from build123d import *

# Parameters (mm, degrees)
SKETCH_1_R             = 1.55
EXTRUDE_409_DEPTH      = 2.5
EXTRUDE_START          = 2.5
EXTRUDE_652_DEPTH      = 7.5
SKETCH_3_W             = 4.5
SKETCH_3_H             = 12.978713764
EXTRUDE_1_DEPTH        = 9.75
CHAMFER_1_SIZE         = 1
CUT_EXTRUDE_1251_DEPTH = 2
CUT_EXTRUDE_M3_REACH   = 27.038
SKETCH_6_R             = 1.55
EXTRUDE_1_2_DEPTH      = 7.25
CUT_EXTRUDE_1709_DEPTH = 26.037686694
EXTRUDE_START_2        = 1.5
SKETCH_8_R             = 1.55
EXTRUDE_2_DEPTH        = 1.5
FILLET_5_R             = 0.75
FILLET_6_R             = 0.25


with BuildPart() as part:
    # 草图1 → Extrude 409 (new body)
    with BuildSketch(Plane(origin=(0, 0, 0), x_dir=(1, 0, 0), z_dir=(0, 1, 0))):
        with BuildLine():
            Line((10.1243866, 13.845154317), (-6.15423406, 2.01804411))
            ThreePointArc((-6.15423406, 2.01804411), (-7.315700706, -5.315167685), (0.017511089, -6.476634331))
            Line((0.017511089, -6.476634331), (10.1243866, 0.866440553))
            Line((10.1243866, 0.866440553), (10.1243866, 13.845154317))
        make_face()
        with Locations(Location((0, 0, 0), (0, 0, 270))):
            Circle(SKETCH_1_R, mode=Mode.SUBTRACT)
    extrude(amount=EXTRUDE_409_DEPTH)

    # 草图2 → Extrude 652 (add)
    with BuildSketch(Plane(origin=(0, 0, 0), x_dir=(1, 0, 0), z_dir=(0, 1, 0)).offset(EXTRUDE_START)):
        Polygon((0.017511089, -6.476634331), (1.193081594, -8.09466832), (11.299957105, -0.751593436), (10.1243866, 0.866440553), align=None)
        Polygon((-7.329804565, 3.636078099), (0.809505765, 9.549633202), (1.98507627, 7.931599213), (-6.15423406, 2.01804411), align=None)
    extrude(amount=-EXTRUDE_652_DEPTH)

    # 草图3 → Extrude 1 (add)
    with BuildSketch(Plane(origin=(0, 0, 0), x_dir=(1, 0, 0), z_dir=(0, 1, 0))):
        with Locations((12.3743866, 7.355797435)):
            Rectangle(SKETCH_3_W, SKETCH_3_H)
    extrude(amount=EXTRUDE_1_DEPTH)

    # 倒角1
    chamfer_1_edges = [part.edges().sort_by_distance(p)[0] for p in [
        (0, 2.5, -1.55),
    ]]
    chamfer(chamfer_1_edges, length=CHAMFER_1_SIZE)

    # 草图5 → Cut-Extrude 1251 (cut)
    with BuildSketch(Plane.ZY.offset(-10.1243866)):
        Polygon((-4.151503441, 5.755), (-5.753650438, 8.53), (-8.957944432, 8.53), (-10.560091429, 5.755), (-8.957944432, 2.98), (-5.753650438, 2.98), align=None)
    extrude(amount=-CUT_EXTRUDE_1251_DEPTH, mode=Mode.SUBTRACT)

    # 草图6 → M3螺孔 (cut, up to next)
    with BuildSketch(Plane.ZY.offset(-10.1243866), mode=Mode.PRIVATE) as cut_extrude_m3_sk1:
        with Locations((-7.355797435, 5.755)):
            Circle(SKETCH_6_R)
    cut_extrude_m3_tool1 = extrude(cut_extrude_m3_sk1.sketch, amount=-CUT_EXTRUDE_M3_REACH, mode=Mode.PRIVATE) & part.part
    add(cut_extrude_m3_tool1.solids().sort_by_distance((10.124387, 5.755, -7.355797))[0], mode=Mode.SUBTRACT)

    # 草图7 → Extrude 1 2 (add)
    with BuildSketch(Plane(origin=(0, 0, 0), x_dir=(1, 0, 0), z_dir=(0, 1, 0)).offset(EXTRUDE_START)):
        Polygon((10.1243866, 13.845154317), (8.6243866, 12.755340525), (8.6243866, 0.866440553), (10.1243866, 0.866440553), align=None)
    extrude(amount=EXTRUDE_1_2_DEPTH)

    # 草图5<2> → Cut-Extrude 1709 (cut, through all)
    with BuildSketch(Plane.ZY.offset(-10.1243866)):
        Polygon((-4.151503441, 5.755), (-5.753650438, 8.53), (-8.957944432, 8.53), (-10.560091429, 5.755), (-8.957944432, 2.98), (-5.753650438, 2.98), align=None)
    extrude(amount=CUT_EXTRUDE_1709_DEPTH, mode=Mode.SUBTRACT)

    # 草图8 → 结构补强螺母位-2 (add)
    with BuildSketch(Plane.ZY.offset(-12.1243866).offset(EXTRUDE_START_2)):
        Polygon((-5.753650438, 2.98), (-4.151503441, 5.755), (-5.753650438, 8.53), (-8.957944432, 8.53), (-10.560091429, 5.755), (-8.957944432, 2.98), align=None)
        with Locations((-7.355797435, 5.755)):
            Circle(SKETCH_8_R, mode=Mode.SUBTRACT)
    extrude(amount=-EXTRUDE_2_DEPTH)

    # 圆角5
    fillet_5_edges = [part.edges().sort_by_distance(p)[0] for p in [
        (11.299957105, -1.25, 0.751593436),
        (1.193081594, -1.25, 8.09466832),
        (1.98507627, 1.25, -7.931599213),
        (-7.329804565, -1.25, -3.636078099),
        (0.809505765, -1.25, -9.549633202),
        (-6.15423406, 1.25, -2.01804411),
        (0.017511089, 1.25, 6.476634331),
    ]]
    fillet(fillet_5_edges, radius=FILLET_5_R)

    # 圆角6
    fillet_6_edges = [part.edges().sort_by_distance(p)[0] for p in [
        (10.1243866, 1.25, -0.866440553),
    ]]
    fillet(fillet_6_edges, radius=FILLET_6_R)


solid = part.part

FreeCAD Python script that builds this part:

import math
import FreeCAD as App
import Part
import Sketcher
from FreeCAD import Vector
Q = App.Units.Quantity


def edges_at(feature, points):
    """Names of the edges that pass closest to the given points."""
    edges = feature.Shape.Edges
    near = lambda p: min(range(len(edges)), key=lambda i: edges[i].distToShape(Part.Vertex(*p))[0])
    return sorted({f"Edge{near(p) + 1}" for p in points})

doc = App.newDocument("Part")
body = doc.addObject("PartDesign::Body", "Body")

# Sketch on XZ plane
sketch1 = doc.addObject("Sketcher::SketchObject", "Sketch")
body.addObject(sketch1)
sketch1.AttachmentSupport = (doc.XZ_Plane, [""])
sketch1.MapMode = "FlatFace"
sketch1.addGeometry([
    Part.LineSegment(Vector(10.124387, -13.845154, 0), Vector(-6.154234, -2.018044, 0)),  # 0
    Part.ArcOfCircle(Part.Circle(Vector(-3.068361, 2.229295, 0), Vector(0, 0, 1), 5.25), math.radians(54), math.radians(234)),  # 1
    Part.LineSegment(Vector(0.017511, 6.476634, 0), Vector(10.124387, -0.866441, 0)),  # 2
    Part.LineSegment(Vector(10.124387, -0.866441, 0), Vector(10.124387, -13.845154, 0)),  # 3
    Part.Circle(Vector(0, 0, 0), Vector(0, 0, 1), 1.55),  # 4
], False)
sketch1.addConstraint([
    Sketcher.Constraint("Tangent", 0, 2, 1, 2),
    Sketcher.Constraint("Tangent", 1, 1, 2, 1),
    Sketcher.Constraint("Coincident", 2, 2, 3, 1),
    Sketcher.Constraint("Coincident", 3, 2, 0, 1),
    Sketcher.Constraint("Vertical", 3),
    Sketcher.Constraint("Coincident", 4, 3, -1, 1),
    Sketcher.Constraint("Parallel", 0, 2),
    Sketcher.Constraint("Diameter", 4, 3.1),
    Sketcher.Constraint("Angle", 0, Q("144 deg")),
    Sketcher.Constraint("Radius", 1, 5.25),
    Sketcher.Constraint("Distance", 0, 20.121482),
    Sketcher.Constraint("DistanceX", 1, 3, -1, 1, 3.068361),
    Sketcher.Constraint("DistanceY", 2, 2, -1, 1, 0.866441),
])
pad1 = doc.addObject("PartDesign::Pad", "Pad")
body.addObject(pad1)
pad1.Profile = sketch1
pad1.Length = 2.5
pad1.Reversed = True

# Sketch on XZ plane
sketch2 = doc.addObject("Sketcher::SketchObject", "Sketch001")
body.addObject(sketch2)
sketch2.AttachmentSupport = (doc.XZ_Plane, [""])
sketch2.MapMode = "FlatFace"
sketch2.AttachmentOffset = App.Placement(Vector(0, 0, -2.5), App.Rotation())
sketch2.addGeometry([
    Part.LineSegment(Vector(0.017511, 6.476634, 0), Vector(1.193082, 8.094668, 0)),  # 0
    Part.LineSegment(Vector(1.193082, 8.094668, 0), Vector(11.299957, 0.751593, 0)),  # 1
    Part.LineSegment(Vector(11.299957, 0.751593, 0), Vector(10.124387, -0.866441, 0)),  # 2
    Part.LineSegment(Vector(10.124387, -0.866441, 0), Vector(0.017511, 6.476634, 0)),  # 3
    Part.LineSegment(Vector(0.809506, -9.549633, 0), Vector(-7.329805, -3.636078, 0)),  # 4
    Part.LineSegment(Vector(-7.329805, -3.636078, 0), Vector(-6.154234, -2.018044, 0)),  # 5
    Part.LineSegment(Vector(-6.154234, -2.018044, 0), Vector(1.985076, -7.931599, 0)),  # 6
    Part.LineSegment(Vector(1.985076, -7.931599, 0), Vector(0.809506, -9.549633, 0)),  # 7
], False)
sketch2.addConstraint([
    Sketcher.Constraint("Coincident", 0, 2, 1, 1),
    Sketcher.Constraint("Coincident", 1, 2, 2, 1),
    Sketcher.Constraint("Coincident", 2, 2, 3, 1),
    Sketcher.Constraint("Coincident", 3, 2, 0, 1),
    Sketcher.Constraint("Coincident", 4, 2, 5, 1),
    Sketcher.Constraint("Coincident", 5, 2, 6, 1),
    Sketcher.Constraint("Coincident", 6, 2, 7, 1),
    Sketcher.Constraint("Coincident", 7, 2, 4, 1),
    Sketcher.Constraint("Perpendicular", 0, 1),
    Sketcher.Constraint("Perpendicular", 1, 2),
    Sketcher.Constraint("Perpendicular", 2, 3),
    Sketcher.Constraint("Parallel", 3, 4),
    Sketcher.Constraint("Perpendicular", 4, 5),
    Sketcher.Constraint("Perpendicular", 5, 6),
    Sketcher.Constraint("Perpendicular", 6, 7),
    Sketcher.Constraint("Equal", 2, 5),
    Sketcher.Constraint("Angle", 0, Q("54 deg")),
    Sketcher.Constraint("Distance", 0, 2.0),
    Sketcher.Constraint("DistanceY", 6, 2, -1, 1, 7.931599),
    Sketcher.Constraint("Distance", 4, 10.060741),
    Sketcher.Constraint("DistanceX", -1, 1, 0, 2, 1.193082),
    Sketcher.Constraint("DistanceY", -1, 1, 0, 2, 8.094668),
    Sketcher.Constraint("DistanceY", 2, 2, -1, 1, 0.866441),
    Sketcher.Constraint("DistanceX", 4, 2, 2, 2, 17.454191),
])
pad2 = doc.addObject("PartDesign::Pad", "Pad001")
body.addObject(pad2)
pad2.Profile = sketch2
pad2.Length = 7.5

# Sketch on XZ plane
sketch3 = doc.addObject("Sketcher::SketchObject", "Sketch002")
body.addObject(sketch3)
sketch3.AttachmentSupport = (doc.XZ_Plane, [""])
sketch3.MapMode = "FlatFace"
sketch3.addGeometry([
    Part.LineSegment(Vector(10.124387, -13.845154, 0), Vector(10.124387, -0.866441, 0)),
    Part.LineSegment(Vector(10.124387, -0.866441, 0), Vector(14.624387, -0.866441, 0)),
    Part.LineSegment(Vector(14.624387, -0.866441, 0), Vector(14.624387, -13.845154, 0)),
    Part.LineSegment(Vector(14.624387, -13.845154, 0), Vector(10.124387, -13.845154, 0)),
], False)
sketch3.addConstraint([
    Sketcher.Constraint("Coincident", 0, 2, 1, 1),
    Sketcher.Constraint("Coincident", 1, 2, 2, 1),
    Sketcher.Constraint("Coincident", 2, 2, 3, 1),
    Sketcher.Constraint("Coincident", 3, 2, 0, 1),
    Sketcher.Constraint("Vertical", 0),
    Sketcher.Constraint("Horizontal", 1),
    Sketcher.Constraint("Vertical", 2),
    Sketcher.Constraint("Horizontal", 3),
    Sketcher.Constraint("DistanceX", 1, 1, 1, 2, 4.5),
    Sketcher.Constraint("DistanceY", 0, 1, 0, 2, 12.978714),
    Sketcher.Constraint("DistanceY", 0, 2, -1, 1, 0.866441),
    Sketcher.Constraint("DistanceX", -1, 1, 0, 2, 10.124387),
])
pad3 = doc.addObject("PartDesign::Pad", "Pad002")
body.addObject(pad3)
pad3.Profile = sketch3
pad3.Length = 9.75
pad3.Reversed = True
doc.recompute()

chamfer = doc.addObject("PartDesign::Chamfer", "Chamfer")
body.addObject(chamfer)
chamfer.Base = (pad3, edges_at(pad3, [(0, 2.5, -1.55)]))
chamfer.Size = 1

# Sketch on YZ plane
sketch4 = doc.addObject("Sketcher::SketchObject", "Sketch003")
body.addObject(sketch4)
sketch4.AttachmentSupport = (doc.YZ_Plane, [""])
sketch4.MapMode = "FlatFace"
sketch4.AttachmentOffset = App.Placement(Vector(0, 0, 10.124387), App.Rotation())
sketch4.addGeometry([
    Part.LineSegment(Vector(5.755, -4.151503, 0), Vector(8.53, -5.75365, 0)),  # 0
    Part.LineSegment(Vector(8.53, -5.75365, 0), Vector(8.53, -8.957944, 0)),  # 1
    Part.LineSegment(Vector(8.53, -8.957944, 0), Vector(5.755, -10.560091, 0)),  # 2
    Part.LineSegment(Vector(5.755, -10.560091, 0), Vector(2.98, -8.957944, 0)),  # 3
    Part.LineSegment(Vector(2.98, -8.957944, 0), Vector(2.98, -5.75365, 0)),  # 4
    Part.LineSegment(Vector(2.98, -5.75365, 0), Vector(5.755, -4.151503, 0)),  # 5
], False)
sketch4.addConstraint([
    Sketcher.Constraint("Coincident", 0, 2, 1, 1),
    Sketcher.Constraint("Coincident", 1, 2, 2, 1),
    Sketcher.Constraint("Coincident", 2, 2, 3, 1),
    Sketcher.Constraint("Coincident", 3, 2, 4, 1),
    Sketcher.Constraint("Coincident", 4, 2, 5, 1),
    Sketcher.Constraint("Coincident", 5, 2, 0, 1),
    Sketcher.Constraint("Vertical", 1),
    Sketcher.Constraint("Vertical", 4),
    Sketcher.Constraint("Parallel", 0, 3),
    Sketcher.Constraint("Parallel", 2, 5),
    Sketcher.Constraint("Horizontal", 1, 2, 3, 2),
    Sketcher.Constraint("Horizontal", 0, 2, 4, 2),
    Sketcher.Constraint("Vertical", 2, 2, 5, 2),
    Sketcher.Constraint("Angle", 0, Q("-30 deg")),
    Sketcher.Constraint("DistanceX", -1, 1, 0, 2, 8.53),
    Sketcher.Constraint("DistanceX", -1, 1, 3, 2, 2.98),
    Sketcher.Constraint("DistanceY", 1, 2, 1, 1, 3.204294),
    Sketcher.Constraint("DistanceY", 0, 2, -1, 1, 5.75365),
])
pocket1 = doc.addObject("PartDesign::Pocket", "Pocket")
body.addObject(pocket1)
pocket1.Profile = sketch4
pocket1.Length = 2
pocket1.Reversed = True

# Sketch on YZ plane
sketch5 = doc.addObject("Sketcher::SketchObject", "Sketch004")
body.addObject(sketch5)
sketch5.AttachmentSupport = (doc.YZ_Plane, [""])
sketch5.MapMode = "FlatFace"
sketch5.AttachmentOffset = App.Placement(Vector(0, 0, 10.124387), App.Rotation())
sketch5.addGeometry(Part.Circle(Vector(5.755, -7.355797, 0), Vector(0, 0, 1), 1.55), False)
sketch5.addConstraint([
    Sketcher.Constraint("Diameter", 0, 3.1),
    Sketcher.Constraint("DistanceX", -1, 1, 0, 3, 5.755),
    Sketcher.Constraint("DistanceY", 0, 3, -1, 1, 7.355797),
])
pocket2 = doc.addObject("PartDesign::Pocket", "Pocket001")
body.addObject(pocket2)
pocket2.Profile = sketch5
pocket2.Length = 4.5
pocket2.Reversed = True

# Sketch on XZ plane
sketch6 = doc.addObject("Sketcher::SketchObject", "Sketch005")
body.addObject(sketch6)
sketch6.AttachmentSupport = (doc.XZ_Plane, [""])
sketch6.MapMode = "FlatFace"
sketch6.AttachmentOffset = App.Placement(Vector(0, 0, -2.5), App.Rotation())
sketch6.addGeometry([
    Part.LineSegment(Vector(10.124387, -13.845154, 0), Vector(8.624387, -12.755341, 0)),
    Part.LineSegment(Vector(8.624387, -12.755341, 0), Vector(8.624387, -0.866441, 0)),
    Part.LineSegment(Vector(8.624387, -0.866441, 0), Vector(10.124387, -0.866441, 0)),
    Part.LineSegment(Vector(10.124387, -0.866441, 0), Vector(10.124387, -13.845154, 0)),
], False)
sketch6.addConstraint([
    Sketcher.Constraint("Coincident", 0, 2, 1, 1),
    Sketcher.Constraint("Coincident", 1, 2, 2, 1),
    Sketcher.Constraint("Coincident", 2, 2, 3, 1),
    Sketcher.Constraint("Coincident", 3, 2, 0, 1),
    Sketcher.Constraint("Vertical", 1),
    Sketcher.Constraint("Horizontal", 2),
    Sketcher.Constraint("Vertical", 3),
    Sketcher.Constraint("Angle", 0, Q("144 deg")),
    Sketcher.Constraint("DistanceX", 2, 1, 2, 2, 1.5),
    Sketcher.Constraint("DistanceY", 1, 1, 1, 2, 11.8889),
    Sketcher.Constraint("DistanceY", 0, 2, -1, 1, 12.755341),
    Sketcher.Constraint("DistanceX", -1, 1, 0, 2, 8.624387),
])
pad4 = doc.addObject("PartDesign::Pad", "Pad003")
body.addObject(pad4)
pad4.Profile = sketch6
pad4.Length = 7.25
pad4.Reversed = True

# Sketch on YZ plane
sketch7 = doc.addObject("Sketcher::SketchObject", "Sketch006")
body.addObject(sketch7)
sketch7.AttachmentSupport = (doc.YZ_Plane, [""])
sketch7.MapMode = "FlatFace"
sketch7.AttachmentOffset = App.Placement(Vector(0, 0, 10.124387), App.Rotation())
sketch7.addGeometry([
    Part.LineSegment(Vector(5.755, -4.151503, 0), Vector(8.53, -5.75365, 0)),  # 0
    Part.LineSegment(Vector(8.53, -5.75365, 0), Vector(8.53, -8.957944, 0)),  # 1
    Part.LineSegment(Vector(8.53, -8.957944, 0), Vector(5.755, -10.560091, 0)),  # 2
    Part.LineSegment(Vector(5.755, -10.560091, 0), Vector(2.98, -8.957944, 0)),  # 3
    Part.LineSegment(Vector(2.98, -8.957944, 0), Vector(2.98, -5.75365, 0)),  # 4
    Part.LineSegment(Vector(2.98, -5.75365, 0), Vector(5.755, -4.151503, 0)),  # 5
], False)
sketch7.addConstraint([
    Sketcher.Constraint("Coincident", 0, 2, 1, 1),
    Sketcher.Constraint("Coincident", 1, 2, 2, 1),
    Sketcher.Constraint("Coincident", 2, 2, 3, 1),
    Sketcher.Constraint("Coincident", 3, 2, 4, 1),
    Sketcher.Constraint("Coincident", 4, 2, 5, 1),
    Sketcher.Constraint("Coincident", 5, 2, 0, 1),
    Sketcher.Constraint("Vertical", 1),
    Sketcher.Constraint("Vertical", 4),
    Sketcher.Constraint("Parallel", 0, 3),
    Sketcher.Constraint("Parallel", 2, 5),
    Sketcher.Constraint("Horizontal", 1, 2, 3, 2),
    Sketcher.Constraint("Horizontal", 0, 2, 4, 2),
    Sketcher.Constraint("Vertical", 2, 2, 5, 2),
    Sketcher.Constraint("Angle", 0, Q("-30 deg")),
    Sketcher.Constraint("DistanceX", -1, 1, 0, 2, 8.53),
    Sketcher.Constraint("DistanceX", -1, 1, 3, 2, 2.98),
    Sketcher.Constraint("DistanceY", 1, 2, 1, 1, 3.204294),
    Sketcher.Constraint("DistanceY", 0, 2, -1, 1, 5.75365),
])
pocket3 = doc.addObject("PartDesign::Pocket", "Pocket002")
body.addObject(pocket3)
pocket3.Profile = sketch7
pocket3.Type = "ThroughAll"

# Sketch on YZ plane
sketch8 = doc.addObject("Sketcher::SketchObject", "Sketch007")
body.addObject(sketch8)
sketch8.AttachmentSupport = (doc.YZ_Plane, [""])
sketch8.MapMode = "FlatFace"
sketch8.AttachmentOffset = App.Placement(Vector(0, 0, 10.624387), App.Rotation())
sketch8.addGeometry([
    Part.LineSegment(Vector(2.98, -5.75365, 0), Vector(5.755, -4.151503, 0)),  # 0
    Part.LineSegment(Vector(5.755, -4.151503, 0), Vector(8.53, -5.75365, 0)),  # 1
    Part.LineSegment(Vector(8.53, -5.75365, 0), Vector(8.53, -8.957944, 0)),  # 2
    Part.LineSegment(Vector(8.53, -8.957944, 0), Vector(5.755, -10.560091, 0)),  # 3
    Part.LineSegment(Vector(5.755, -10.560091, 0), Vector(2.98, -8.957944, 0)),  # 4
    Part.LineSegment(Vector(2.98, -8.957944, 0), Vector(2.98, -5.75365, 0)),  # 5
    Part.Circle(Vector(5.755, -7.355797, 0), Vector(0, 0, 1), 1.55),  # 6
], False)
sketch8.addConstraint([
    Sketcher.Constraint("Coincident", 0, 2, 1, 1),
    Sketcher.Constraint("Coincident", 1, 2, 2, 1),
    Sketcher.Constraint("Coincident", 2, 2, 3, 1),
    Sketcher.Constraint("Coincident", 3, 2, 4, 1),
    Sketcher.Constraint("Coincident", 4, 2, 5, 1),
    Sketcher.Constraint("Coincident", 5, 2, 0, 1),
    Sketcher.Constraint("Vertical", 2),
    Sketcher.Constraint("Vertical", 5),
    Sketcher.Constraint("Parallel", 0, 3),
    Sketcher.Constraint("Parallel", 1, 4),
    Sketcher.Constraint("Horizontal", 2, 2, 4, 2),
    Sketcher.Constraint("Horizontal", 1, 2, 5, 2),
    Sketcher.Constraint("Vertical", 6, 3, 0, 2),
    Sketcher.Constraint("Vertical", 0, 2, 3, 2),
    Sketcher.Constraint("Diameter", 6, 3.1),
    Sketcher.Constraint("Angle", 0, Q("30 deg")),
    Sketcher.Constraint("DistanceX", -1, 1, 1, 2, 8.53),
    Sketcher.Constraint("DistanceX", -1, 1, 4, 2, 2.98),
    Sketcher.Constraint("DistanceY", 2, 2, 2, 1, 3.204294),
    Sketcher.Constraint("DistanceY", 1, 2, -1, 1, 5.75365),
    Sketcher.Constraint("DistanceY", 6, 3, -1, 1, 7.355797),
])
pad5 = doc.addObject("PartDesign::Pad", "Pad004")
body.addObject(pad5)
pad5.Profile = sketch8
pad5.Length = 1.5
doc.recompute()

fillet = doc.addObject("PartDesign::Fillet", "Fillet")
body.addObject(fillet)
fillet.Base = (pad5, edges_at(pad5, [
    (11.3, -1.25, 0.752),
    (1.193, -1.25, 8.095),
    (1.985, 1.25, -7.932),
    (-7.33, -1.25, -3.636),
    (0.81, -1.25, -9.55),
    (-6.154, 1.25, -2.018),
    (0.018, 1.25, 6.477),
]))
fillet.Radius = 0.75
doc.recompute()

fillet2 = doc.addObject("PartDesign::Fillet", "Fillet001")
body.addObject(fillet2)
fillet2.Base = (fillet, edges_at(fillet, [(10.124, 1.25, -0.866)]))
fillet2.Radius = 0.25

doc.recompute()
